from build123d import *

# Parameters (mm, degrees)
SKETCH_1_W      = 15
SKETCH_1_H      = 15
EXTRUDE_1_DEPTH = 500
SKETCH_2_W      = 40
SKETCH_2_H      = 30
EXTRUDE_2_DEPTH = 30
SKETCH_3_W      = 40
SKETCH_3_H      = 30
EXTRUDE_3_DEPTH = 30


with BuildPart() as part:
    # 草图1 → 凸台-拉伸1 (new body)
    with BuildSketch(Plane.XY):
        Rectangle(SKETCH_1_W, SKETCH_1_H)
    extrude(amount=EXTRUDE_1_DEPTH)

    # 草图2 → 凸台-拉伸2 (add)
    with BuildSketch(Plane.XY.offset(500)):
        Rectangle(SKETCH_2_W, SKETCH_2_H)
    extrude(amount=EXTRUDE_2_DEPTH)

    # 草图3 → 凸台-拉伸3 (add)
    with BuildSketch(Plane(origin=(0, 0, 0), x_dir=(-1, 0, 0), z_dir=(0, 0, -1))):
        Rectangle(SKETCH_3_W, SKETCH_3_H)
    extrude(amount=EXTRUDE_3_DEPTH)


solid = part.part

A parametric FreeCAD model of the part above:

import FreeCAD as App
import Part
import Sketcher

V = App.Vector


def add_polygon(sketch, points):
    """Adds a closed chain of lines whose ends are joined by coincident constraints."""
    first, n = sketch.GeometryCount, len(points)
    for a, b in zip(points, points[1:] + points[:1]):
        sketch.addGeometry(Part.LineSegment(App.Vector(*a, 0), App.Vector(*b, 0)), False)
    for i in range(n):
        sketch.addConstraint(Sketcher.Constraint("Coincident", first + i, 2, first + (i + 1) % n, 1))

doc = App.newDocument("Part")
params = doc.addObject("Spreadsheet::Sheet", "Params")
for row, (alias, value) in enumerate([
    ("sketch1_width", "15 mm"),
    ("pad1_length", "500 mm"),
    ("sketch2_width", "40 mm"),
    ("sketch2_height", "30 mm"),
    ("pad2_length", "30 mm"),
    ("sketch3_width", "40 mm"),
    ("sketch3_height", "30 mm"),
    ("pad3_length", "30 mm"),
], start=1):
    params.set(f"A{row}", alias)
    params.set(f"B{row}", "=" + value)
    params.setAlias(f"B{row}", alias)

body = doc.addObject("PartDesign::Body", "Body")

sketch1 = doc.addObject("Sketcher::SketchObject", "Sketch")
body.addObject(sketch1)
sketch1.AttachmentSupport = (doc.XY_Plane, [""])
sketch1.MapMode = "FlatFace"
add_polygon(sketch1, [(-7.5, 7.5), (-7.5, -7.5), (7.5, -7.5), (7.5, 7.5)])
sketch1.addConstraint([
    Sketcher.Constraint("Vertical", 0),
    Sketcher.Constraint("Horizontal", 1),
    Sketcher.Constraint("Vertical", 2),
    Sketcher.Constraint("Horizontal", 3),
    Sketcher.Constraint("Symmetric", 0, 2, 2, 2, -1, 1),
    Sketcher.Constraint("Equal", 3, 0),
    Sketcher.Constraint("DistanceX", 1, 1, 1, 2, 15.0),
])
sketch1.setExpression("Constraints[10]", "Params.sketch1_width")
pad1 = doc.addObject("PartDesign::Pad", "Pad")
body.addObject(pad1)
pad1.Profile = sketch1
pad1.setExpression("Length", "Params.pad1_length")

sketch2 = doc.addObject("Sketcher::SketchObject", "Sketch001")
body.addObject(sketch2)
sketch2.AttachmentSupport = (doc.XY_Plane, [""])
sketch2.MapMode = "FlatFace"
sketch2.AttachmentOffset = App.Placement(V(0, 0, 500), App.Rotation())
add_polygon(sketch2, [(-20, 15), (-20, -15), (20, -15), (20, 15)])
sketch2.addConstraint([
    Sketcher.Constraint("Vertical", 0),
    Sketcher.Constraint("Horizontal", 1),
    Sketcher.Constraint("Vertical", 2),
    Sketcher.Constraint("Horizontal", 3),
    Sketcher.Constraint("Symmetric", 0, 2, 2, 2, -1, 1),
    Sketcher.Constraint("DistanceX", 1, 1, 1, 2, 40.0),
    Sketcher.Constraint("DistanceY", 0, 2, 0, 1, 30.0),
])
sketch2.setExpression("Constraints[9]", "Params.sketch2_width")
sketch2.setExpression("Constraints[10]", "Params.sketch2_height")
pad2 = doc.addObject("PartDesign::Pad", "Pad001")
body.addObject(pad2)
pad2.Profile = sketch2
pad2.setExpression("Length", "Params.pad2_length")

sketch3 = doc.addObject("Sketcher::SketchObject", "Sketch002")
body.addObject(sketch3)
sketch3.AttachmentSupport = (doc.XY_Plane, [""])
sketch3.MapMode = "FlatFace"
add_polygon(sketch3, [(20, 15), (20, -15), (-20, -15), (-20, 15)])
sketch3.addConstraint([
    Sketcher.Constraint("Vertical", 0),
    Sketcher.Constraint("Horizontal", 1),
    Sketcher.Constraint("Vertical", 2),
    Sketcher.Constraint("Horizontal", 3),
    Sketcher.Constraint("Symmetric", 0, 2, 2, 2, -1, 1),
    Sketcher.Constraint("DistanceX", 1, 2, 1, 1, 40.0),
    Sketcher.Constraint("DistanceY", 0, 2, 0, 1, 30.0),
])
sketch3.setExpression("Constraints[9]", "Params.sketch3_width")
sketch3.setExpression("Constraints[10]", "Params.sketch3_height")
pad3 = doc.addObject("PartDesign::Pad", "Pad002")
body.addObject(pad3)
pad3.Profile = sketch3
pad3.setExpression("Length", "Params.pad3_length")
pad3.Reversed = True

doc.recompute()
